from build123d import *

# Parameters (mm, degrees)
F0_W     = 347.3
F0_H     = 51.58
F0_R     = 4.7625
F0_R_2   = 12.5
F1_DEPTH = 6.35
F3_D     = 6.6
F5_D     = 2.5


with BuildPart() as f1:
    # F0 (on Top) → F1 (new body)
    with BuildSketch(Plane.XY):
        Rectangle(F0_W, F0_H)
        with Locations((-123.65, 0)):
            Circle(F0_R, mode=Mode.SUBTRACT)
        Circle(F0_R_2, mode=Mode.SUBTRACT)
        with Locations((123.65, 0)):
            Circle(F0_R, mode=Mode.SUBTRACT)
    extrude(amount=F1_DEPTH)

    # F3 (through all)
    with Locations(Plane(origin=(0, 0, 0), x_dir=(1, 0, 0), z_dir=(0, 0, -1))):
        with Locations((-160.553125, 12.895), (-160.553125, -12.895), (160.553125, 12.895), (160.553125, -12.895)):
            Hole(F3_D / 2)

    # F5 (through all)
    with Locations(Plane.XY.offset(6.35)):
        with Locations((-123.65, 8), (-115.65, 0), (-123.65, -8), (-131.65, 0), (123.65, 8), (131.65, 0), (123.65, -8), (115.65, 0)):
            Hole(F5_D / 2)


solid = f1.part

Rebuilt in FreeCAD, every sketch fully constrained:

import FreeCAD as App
import Part
import Sketcher

doc = App.newDocument("Part")
body = doc.addObject("PartDesign::Body", "Body")

sketch1 = body.newObject("Sketcher::SketchObject", "Sketch")
sketch1.AttachmentSupport = (doc.getObject("XY_Plane"), [""])
sketch1.MapMode = "FlatFace"
sketch1.addGeometry([
    Part.LineSegment(App.Vector(-173.7, 25.8, 0), App.Vector(-173.7, -25.8, 0)),
    Part.LineSegment(App.Vector(-173.7, -25.8, 0), App.Vector(173.7, -25.8, 0)),
    Part.LineSegment(App.Vector(173.7, -25.8, 0), App.Vector(173.7, 25.8, 0)),
    Part.LineSegment(App.Vector(173.7, 25.8, 0), App.Vector(-173.7, 25.8, 0)),
    Part.Circle(App.Vector(-123.7, 0, 0), App.Vector(0, 0, 1), 4.8),
    Part.Circle(App.Vector(0, 0, 0), App.Vector(0, 0, 1), 12.5),
    Part.Circle(App.Vector(123.7, 0, 0), App.Vector(0, 0, 1), 4.8),
], False)
sketch1.addConstraint([
    Sketcher.Constraint("Coincident", 0, 2, 1, 1),
    Sketcher.Constraint("Coincident", 1, 2, 2, 1),
    Sketcher.Constraint("Coincident", 2, 2, 3, 1),
    Sketcher.Constraint("Coincident", 3, 2, 0, 1),
    Sketcher.Constraint("Vertical", 0),
    Sketcher.Constraint("Horizontal", 1),
    Sketcher.Constraint("Vertical", 2),
    Sketcher.Constraint("Horizontal", 3),
    Sketcher.Constraint("Coincident", 5, 3, -1, 1),
    Sketcher.Constraint("Equal", 4, 6),
    Sketcher.Constraint("Symmetric", 4, 3, 6, 3, -1, 1),
    Sketcher.Constraint("Symmetric", 0, 2, 2, 2, -1, 1),
    Sketcher.Constraint("PointOnObject", 4, 3, -1),
    Sketcher.Constraint("Diameter", 5, 25.0),
    Sketcher.Constraint("Diameter", 4, 9.525),
    Sketcher.Constraint("DistanceX", 1, 1, 1, 2, 347.3),
    Sketcher.Constraint("DistanceX", 0, 2, 4, 3, 50.0),
    Sketcher.Constraint("DistanceY", 0, 2, 0, 1, 51.58),
])
pad1 = body.newObject("PartDesign::Pad", "Pad")
pad1.Profile = sketch1
pad1.Length = 6.35

sketch2 = body.newObject("Sketcher::SketchObject", "Sketch001")
sketch2.AttachmentSupport = (doc.getObject("XY_Plane"), [""])
sketch2.MapMode = "FlatFace"
sketch2.addGeometry([
    Part.Circle(App.Vector(-160.6, -12.9, 0), App.Vector(0, 0, 1), 3.3),
    Part.Circle(App.Vector(-160.6, 12.9, 0), App.Vector(0, 0, 1), 3.3),
    Part.Circle(App.Vector(160.6, -12.9, 0), App.Vector(0, 0, 1), 3.3),
    Part.Circle(App.Vector(160.6, 12.9, 0), App.Vector(0, 0, 1), 3.3),
], False)
sketch2.addConstraint([
    Sketcher.Constraint("Equal", 0, 1),
    Sketcher.Constraint("Equal", 1, 2),
    Sketcher.Constraint("Equal", 2, 3),
    Sketcher.Constraint("Symmetric", 1, 3, 2, 3, -1, 1),
    Sketcher.Constraint("Symmetric", 0, 3, 3, 3, -1, 1),
    Sketcher.Constraint("Symmetric", 0, 3, 2, 3, -2),
    Sketcher.Constraint("Diameter", 0, 6.6),
    Sketcher.Constraint("DistanceY", 0, 3, 1, 3, 25.79),
    Sketcher.Constraint("DistanceX", 0, 3, 2, 3, 321.10625),
])
doc.recompute()
hole = body.newObject("PartDesign::Hole", "Hole")
hole.Profile = sketch2
hole.ThreadType = "None"
hole.Diameter = 6.6
hole.DepthType = "ThroughAll"
hole.Reversed = True

sketch3 = body.newObject("Sketcher::SketchObject", "Sketch002")
sketch3.AttachmentSupport = (doc.getObject("XY_Plane"), [""])
sketch3.MapMode = "FlatFace"
sketch3.AttachmentOffset = App.Placement(App.Vector(0, 0, 6.35), App.Rotation())
sketch3.addGeometry([
    Part.Circle(App.Vector(-123.7, 8, 0), App.Vector(0, 0, 1), 1.2),
    Part.Circle(App.Vector(-115.7, 0, 0), App.Vector(0, 0, 1), 1.2),
    Part.Circle(App.Vector(-123.7, -8, 0), App.Vector(0, 0, 1), 1.2),
    Part.Circle(App.Vector(-131.7, 0, 0), App.Vector(0, 0, 1), 1.2),
    Part.Circle(App.Vector(123.7, 8, 0), App.Vector(0, 0, 1), 1.2),
    Part.Circle(App.Vector(131.7, 0, 0), App.Vector(0, 0, 1), 1.2),
    Part.Circle(App.Vector(123.7, -8, 0), App.Vector(0, 0, 1), 1.2),
    Part.Circle(App.Vector(115.7, 0, 0), App.Vector(0, 0, 1), 1.2),
], False)
sketch3.addConstraint([
    Sketcher.Constraint("Equal", 0, 1),
    Sketcher.Constraint("Equal", 1, 2),
    Sketcher.Constraint("Equal", 2, 3),
    Sketcher.Constraint("Equal", 3, 4),
    Sketcher.Constraint("Equal", 4, 5),
    Sketcher.Constraint("Equal", 5, 6),
    Sketcher.Constraint("Equal", 6, 7),
    Sketcher.Constraint("Symmetric", 2, 3, 4, 3, -1, 1),
    Sketcher.Constraint("Symmetric", 3, 3, 5, 3, -1, 1),
    Sketcher.Constraint("Symmetric", 0, 3, 6, 3, -1, 1),
    Sketcher.Constraint("Symmetric", 1, 3, 7, 3, -1, 1),
    Sketcher.Constraint("Symmetric", 0, 3, 4, 3, -2),
    Sketcher.Constraint("PointOnObject", 1, 3, -1),
    Sketcher.Constraint("PointOnObject", 3, 3, -1),
    Sketcher.Constraint("Diameter", 0, 2.5),
    Sketcher.Constraint("DistanceY", -1, 1, 0, 3, 8.0),
    Sketcher.Constraint("DistanceX", 0, 3, 1, 3, 8.0),
    Sketcher.Constraint("DistanceX", 3, 3, 0, 3, 8.0),
    Sketcher.Constraint("DistanceX", 1, 3, 4, 3, 239.3),
])
doc.recompute()
hole2 = body.newObject("PartDesign::Hole", "Hole001")
hole2.Profile = sketch3
hole2.ThreadType = "None"
hole2.Diameter = 2.5
hole2.DepthType = "ThroughAll"

doc.recompute()
